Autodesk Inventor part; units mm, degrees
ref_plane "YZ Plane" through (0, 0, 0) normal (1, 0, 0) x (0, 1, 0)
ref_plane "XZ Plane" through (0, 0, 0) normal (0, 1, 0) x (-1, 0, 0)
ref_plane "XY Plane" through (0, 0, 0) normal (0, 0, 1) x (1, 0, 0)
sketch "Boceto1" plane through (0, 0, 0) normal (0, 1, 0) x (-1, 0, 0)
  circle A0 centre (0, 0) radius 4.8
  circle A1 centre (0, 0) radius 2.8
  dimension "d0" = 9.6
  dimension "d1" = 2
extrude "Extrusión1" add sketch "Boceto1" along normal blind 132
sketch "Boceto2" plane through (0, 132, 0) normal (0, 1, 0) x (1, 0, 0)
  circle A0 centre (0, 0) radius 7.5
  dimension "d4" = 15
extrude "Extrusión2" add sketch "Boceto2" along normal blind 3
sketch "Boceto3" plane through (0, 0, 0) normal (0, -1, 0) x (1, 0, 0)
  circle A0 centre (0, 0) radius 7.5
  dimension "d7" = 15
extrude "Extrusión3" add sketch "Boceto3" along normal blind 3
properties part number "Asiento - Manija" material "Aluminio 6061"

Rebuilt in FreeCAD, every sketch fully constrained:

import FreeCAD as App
import Part
import Sketcher

V = App.Vector

doc = App.newDocument("Part")
params = doc.addObject("Spreadsheet::Sheet", "Params")
for row, (alias, value) in enumerate([
    ("sketch1_diameter", "9.6 mm"),
    ("sketch1_diameter2", "5.6 mm"),
    ("pad1_length", "132 mm"),
    ("sketch2_diameter", "15 mm"),
    ("pad2_length", "3 mm"),
    ("sketch3_diameter", "15 mm"),
    ("pad3_length", "3 mm"),
], start=1):
    params.set(f"A{row}", alias)
    params.set(f"B{row}", "=" + value)
    params.setAlias(f"B{row}", alias)

body = doc.addObject("PartDesign::Body", "Body")

# Sketch on XZ plane
sketch1 = doc.addObject("Sketcher::SketchObject", "Sketch")
body.addObject(sketch1)
sketch1.AttachmentSupport = (doc.XZ_Plane, [""])
sketch1.MapMode = "FlatFace"
sketch1.addGeometry([
    Part.Circle(V(0, 0, 0), V(0, 0, 1), 4.8),
    Part.Circle(V(0, 0, 0), V(0, 0, 1), 2.8),
], False)
sketch1.addConstraint([
    Sketcher.Constraint("Coincident", 0, 3, -1, 1),
    Sketcher.Constraint("Coincident", 1, 3, -1, 1),
    Sketcher.Constraint("Diameter", 0, 9.6),
    Sketcher.Constraint("Diameter", 1, 5.6),
])
sketch1.setExpression("Constraints[2]", "Params.sketch1_diameter")
sketch1.setExpression("Constraints[3]", "Params.sketch1_diameter2")
pad1 = doc.addObject("PartDesign::Pad", "Pad")
body.addObject(pad1)
pad1.Profile = sketch1
pad1.setExpression("Length", "Params.pad1_length")
pad1.Reversed = True

# Sketch on XZ plane
sketch2 = doc.addObject("Sketcher::SketchObject", "Sketch001")
body.addObject(sketch2)
sketch2.AttachmentSupport = (doc.XZ_Plane, [""])
sketch2.MapMode = "FlatFace"
sketch2.AttachmentOffset = App.Placement(V(0, 0, -132), App.Rotation())
sketch2.addGeometry(Part.Circle(V(0, 0, 0), V(0, 0, 1), 8), False)
sketch2.addConstraint([
    Sketcher.Constraint("Coincident", 0, 3, -1, 1),
    Sketcher.Constraint("Diameter", 0, 15.0),
])
sketch2.setExpression("Constraints[1]", "Params.sketch2_diameter")
pad2 = doc.addObject("PartDesign::Pad", "Pad001")
body.addObject(pad2)
pad2.Profile = sketch2
pad2.setExpression("Length", "Params.pad2_length")
pad2.Reversed = True

# Sketch on XZ plane
sketch3 = doc.addObject("Sketcher::SketchObject", "Sketch002")
body.addObject(sketch3)
sketch3.AttachmentSupport = (doc.XZ_Plane, [""])
sketch3.MapMode = "FlatFace"
sketch3.addGeometry(Part.Circle(V(0, 0, 0), V(0, 0, 1), 8), False)
sketch3.addConstraint([
    Sketcher.Constraint("Coincident", 0, 3, -1, 1),
    Sketcher.Constraint("Diameter", 0, 15.0),
])
sketch3.setExpression("Constraints[1]", "Params.sketch3_diameter")
pad3 = doc.addObject("PartDesign::Pad", "Pad002")
body.addObject(pad3)
pad3.Profile = sketch3
pad3.setExpression("Length", "Params.pad3_length")

doc.recompute()
